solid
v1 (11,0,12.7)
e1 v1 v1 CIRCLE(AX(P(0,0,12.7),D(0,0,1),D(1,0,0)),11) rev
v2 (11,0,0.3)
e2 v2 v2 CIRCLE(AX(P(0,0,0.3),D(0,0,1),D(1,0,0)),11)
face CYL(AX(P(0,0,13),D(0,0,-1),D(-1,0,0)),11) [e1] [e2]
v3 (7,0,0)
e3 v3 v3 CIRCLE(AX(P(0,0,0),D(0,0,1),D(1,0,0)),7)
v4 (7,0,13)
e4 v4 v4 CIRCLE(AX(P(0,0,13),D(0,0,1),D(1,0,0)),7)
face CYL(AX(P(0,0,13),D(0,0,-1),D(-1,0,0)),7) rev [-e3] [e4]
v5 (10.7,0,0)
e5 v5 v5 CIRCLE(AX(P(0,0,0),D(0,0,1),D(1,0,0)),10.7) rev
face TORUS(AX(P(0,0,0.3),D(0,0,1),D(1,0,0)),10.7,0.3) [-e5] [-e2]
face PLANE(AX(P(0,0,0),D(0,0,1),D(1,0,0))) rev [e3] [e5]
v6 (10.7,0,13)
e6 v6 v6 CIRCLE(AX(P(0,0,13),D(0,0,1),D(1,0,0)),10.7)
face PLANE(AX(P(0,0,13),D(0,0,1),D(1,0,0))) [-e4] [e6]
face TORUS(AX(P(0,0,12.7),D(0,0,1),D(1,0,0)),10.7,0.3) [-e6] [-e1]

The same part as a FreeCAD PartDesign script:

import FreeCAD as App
import Part
import Sketcher


def edges_at(feature, points):
    """Names of the edges that pass closest to the given points."""
    edges = feature.Shape.Edges
    near = lambda p: min(range(len(edges)), key=lambda i: edges[i].distToShape(Part.Vertex(*p))[0])
    return sorted({f"Edge{near(p) + 1}" for p in points})

doc = App.newDocument("Part")
body = doc.addObject("PartDesign::Body", "Body")

sketch1 = body.newObject("Sketcher::SketchObject", "Sketch")
sketch1.AttachmentSupport = (doc.getObject("XY_Plane"), [""])
sketch1.MapMode = "FlatFace"
sketch1.addGeometry(Part.Circle(App.Vector(0, 0, 0), App.Vector(0, 0, 1), 11), False)
sketch1.addGeometry(Part.Circle(App.Vector(0, 0, 0), App.Vector(0, 0, 1), 7), False)
sketch1.addConstraint(Sketcher.Constraint("Coincident", 0, 3, -1, 1))
sketch1.addConstraint(Sketcher.Constraint("Coincident", 1, 3, -1, 1))
sketch1.addConstraint(Sketcher.Constraint("Diameter", 0, 22.0))
sketch1.addConstraint(Sketcher.Constraint("Diameter", 1, 14.0))
pad1 = body.newObject("PartDesign::Pad", "Pad")
pad1.Profile = sketch1
pad1.Length = 13
doc.recompute()

fillet = body.newObject("PartDesign::Fillet", "Fillet")
fillet.Base = (pad1, edges_at(pad1, [(-11, 0, 0), (-11, 0, 13)]))
fillet.Radius = 0.3

doc.recompute()
